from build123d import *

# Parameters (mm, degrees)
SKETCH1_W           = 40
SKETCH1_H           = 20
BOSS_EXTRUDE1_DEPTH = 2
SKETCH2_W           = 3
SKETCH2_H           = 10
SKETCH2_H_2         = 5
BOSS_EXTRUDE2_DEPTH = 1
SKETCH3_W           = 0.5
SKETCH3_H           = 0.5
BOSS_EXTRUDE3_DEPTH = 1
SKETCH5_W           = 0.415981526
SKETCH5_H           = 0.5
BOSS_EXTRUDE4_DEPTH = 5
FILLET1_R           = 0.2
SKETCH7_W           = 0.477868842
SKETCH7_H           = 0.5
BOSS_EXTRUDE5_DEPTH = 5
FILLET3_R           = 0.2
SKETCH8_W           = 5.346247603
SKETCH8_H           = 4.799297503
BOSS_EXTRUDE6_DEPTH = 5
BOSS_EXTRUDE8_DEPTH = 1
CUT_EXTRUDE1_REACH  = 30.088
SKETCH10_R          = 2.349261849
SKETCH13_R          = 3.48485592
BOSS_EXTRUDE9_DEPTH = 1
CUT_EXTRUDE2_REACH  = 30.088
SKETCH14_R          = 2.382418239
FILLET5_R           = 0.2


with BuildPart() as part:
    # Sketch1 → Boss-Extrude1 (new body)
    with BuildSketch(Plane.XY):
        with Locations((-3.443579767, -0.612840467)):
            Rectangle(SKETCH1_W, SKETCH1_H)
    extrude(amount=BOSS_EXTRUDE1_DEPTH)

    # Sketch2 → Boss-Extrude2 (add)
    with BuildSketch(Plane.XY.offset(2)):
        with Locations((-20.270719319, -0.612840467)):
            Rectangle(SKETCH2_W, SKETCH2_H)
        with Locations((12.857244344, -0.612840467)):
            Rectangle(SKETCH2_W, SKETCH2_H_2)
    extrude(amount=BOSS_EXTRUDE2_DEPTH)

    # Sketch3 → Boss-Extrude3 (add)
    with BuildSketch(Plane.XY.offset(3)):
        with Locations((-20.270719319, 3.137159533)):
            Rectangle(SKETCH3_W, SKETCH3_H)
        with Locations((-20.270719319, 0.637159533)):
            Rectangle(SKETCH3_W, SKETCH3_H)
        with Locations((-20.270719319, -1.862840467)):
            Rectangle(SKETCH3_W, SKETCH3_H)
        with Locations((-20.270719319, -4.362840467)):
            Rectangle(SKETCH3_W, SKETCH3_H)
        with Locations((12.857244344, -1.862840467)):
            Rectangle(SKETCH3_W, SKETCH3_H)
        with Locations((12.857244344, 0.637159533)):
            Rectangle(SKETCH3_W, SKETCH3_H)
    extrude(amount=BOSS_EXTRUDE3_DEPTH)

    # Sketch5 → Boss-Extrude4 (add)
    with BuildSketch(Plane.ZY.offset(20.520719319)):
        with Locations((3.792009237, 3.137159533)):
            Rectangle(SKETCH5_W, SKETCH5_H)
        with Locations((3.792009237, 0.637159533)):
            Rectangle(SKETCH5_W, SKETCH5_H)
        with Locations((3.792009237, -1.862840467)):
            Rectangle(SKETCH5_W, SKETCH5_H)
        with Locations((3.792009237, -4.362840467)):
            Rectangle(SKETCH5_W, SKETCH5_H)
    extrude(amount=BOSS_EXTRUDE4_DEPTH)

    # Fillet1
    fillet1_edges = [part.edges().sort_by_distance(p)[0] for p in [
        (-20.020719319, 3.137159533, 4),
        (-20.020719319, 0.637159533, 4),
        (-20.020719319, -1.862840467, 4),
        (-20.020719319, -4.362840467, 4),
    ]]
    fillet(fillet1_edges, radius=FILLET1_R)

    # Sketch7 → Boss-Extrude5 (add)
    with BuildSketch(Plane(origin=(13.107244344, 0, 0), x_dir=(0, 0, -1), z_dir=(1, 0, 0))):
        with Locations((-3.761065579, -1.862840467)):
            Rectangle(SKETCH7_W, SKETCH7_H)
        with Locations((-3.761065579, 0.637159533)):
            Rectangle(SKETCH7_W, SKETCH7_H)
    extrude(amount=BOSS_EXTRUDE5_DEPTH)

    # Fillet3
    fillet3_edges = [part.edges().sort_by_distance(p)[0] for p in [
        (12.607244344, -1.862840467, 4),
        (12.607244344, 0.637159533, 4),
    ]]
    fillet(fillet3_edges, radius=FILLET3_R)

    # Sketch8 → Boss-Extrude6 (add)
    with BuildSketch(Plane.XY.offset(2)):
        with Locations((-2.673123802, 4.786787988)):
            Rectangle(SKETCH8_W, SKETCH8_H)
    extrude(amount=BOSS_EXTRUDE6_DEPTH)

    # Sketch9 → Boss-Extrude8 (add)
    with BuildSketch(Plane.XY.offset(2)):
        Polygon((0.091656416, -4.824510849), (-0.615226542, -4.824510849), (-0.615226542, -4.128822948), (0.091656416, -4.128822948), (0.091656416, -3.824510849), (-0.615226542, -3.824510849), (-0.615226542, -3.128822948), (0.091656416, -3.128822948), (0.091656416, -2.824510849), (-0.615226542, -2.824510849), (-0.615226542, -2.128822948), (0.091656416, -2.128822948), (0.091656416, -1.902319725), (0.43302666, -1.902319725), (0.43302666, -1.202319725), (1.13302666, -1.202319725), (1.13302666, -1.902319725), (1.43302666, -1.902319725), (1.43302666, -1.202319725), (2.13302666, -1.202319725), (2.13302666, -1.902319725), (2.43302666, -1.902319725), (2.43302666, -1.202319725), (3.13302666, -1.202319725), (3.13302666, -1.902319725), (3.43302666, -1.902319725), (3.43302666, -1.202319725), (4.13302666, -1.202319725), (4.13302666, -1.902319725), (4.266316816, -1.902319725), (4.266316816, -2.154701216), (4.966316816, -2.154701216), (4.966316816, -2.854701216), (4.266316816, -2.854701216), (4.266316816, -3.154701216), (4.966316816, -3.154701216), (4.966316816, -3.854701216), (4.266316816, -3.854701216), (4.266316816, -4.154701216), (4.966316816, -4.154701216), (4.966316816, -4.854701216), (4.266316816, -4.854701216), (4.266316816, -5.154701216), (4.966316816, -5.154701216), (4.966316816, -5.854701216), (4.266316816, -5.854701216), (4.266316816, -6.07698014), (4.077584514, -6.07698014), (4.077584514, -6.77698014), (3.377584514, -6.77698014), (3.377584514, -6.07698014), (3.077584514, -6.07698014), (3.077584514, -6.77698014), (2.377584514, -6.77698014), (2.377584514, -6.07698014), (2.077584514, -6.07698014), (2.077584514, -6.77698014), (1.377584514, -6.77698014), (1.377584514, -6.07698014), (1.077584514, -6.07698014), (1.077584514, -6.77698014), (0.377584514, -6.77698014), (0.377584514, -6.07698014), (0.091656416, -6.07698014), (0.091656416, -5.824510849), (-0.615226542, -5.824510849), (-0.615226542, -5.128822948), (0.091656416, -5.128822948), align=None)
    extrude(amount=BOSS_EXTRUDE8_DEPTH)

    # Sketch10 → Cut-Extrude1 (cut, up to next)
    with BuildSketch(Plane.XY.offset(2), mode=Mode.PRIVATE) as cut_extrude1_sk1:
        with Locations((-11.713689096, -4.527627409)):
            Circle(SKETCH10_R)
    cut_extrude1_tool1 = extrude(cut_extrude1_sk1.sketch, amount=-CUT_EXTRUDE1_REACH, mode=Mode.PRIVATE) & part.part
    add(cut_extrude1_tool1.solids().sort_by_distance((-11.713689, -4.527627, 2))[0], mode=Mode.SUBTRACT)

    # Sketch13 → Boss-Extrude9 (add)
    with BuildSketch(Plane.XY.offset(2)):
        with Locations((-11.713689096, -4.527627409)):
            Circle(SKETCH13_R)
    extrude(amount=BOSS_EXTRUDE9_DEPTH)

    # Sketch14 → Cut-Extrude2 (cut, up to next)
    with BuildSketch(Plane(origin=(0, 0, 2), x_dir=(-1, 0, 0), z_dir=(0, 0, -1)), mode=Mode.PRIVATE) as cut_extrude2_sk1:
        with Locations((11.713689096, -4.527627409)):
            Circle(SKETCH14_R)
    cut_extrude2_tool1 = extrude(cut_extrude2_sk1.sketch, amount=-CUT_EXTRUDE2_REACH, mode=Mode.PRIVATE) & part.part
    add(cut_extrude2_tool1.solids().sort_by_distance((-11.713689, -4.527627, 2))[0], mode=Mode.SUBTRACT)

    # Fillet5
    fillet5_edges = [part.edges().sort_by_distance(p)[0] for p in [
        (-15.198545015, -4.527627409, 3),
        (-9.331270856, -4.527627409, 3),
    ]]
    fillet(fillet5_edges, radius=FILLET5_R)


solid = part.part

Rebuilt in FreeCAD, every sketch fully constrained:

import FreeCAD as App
import Part
import Sketcher
Q = App.Units.Quantity


def edges_at(feature, points):
    """Names of the edges that pass closest to the given points."""
    edges = feature.Shape.Edges
    near = lambda p: min(range(len(edges)), key=lambda i: edges[i].distToShape(Part.Vertex(*p))[0])
    return sorted({f"Edge{near(p) + 1}" for p in points})


def add_polygon(sketch, points):
    """Adds a closed chain of lines whose ends are joined by coincident constraints."""
    first, n = sketch.GeometryCount, len(points)
    for a, b in zip(points, points[1:] + points[:1]):
        sketch.addGeometry(Part.LineSegment(App.Vector(*a, 0), App.Vector(*b, 0)), False)
    for i in range(n):
        sketch.addConstraint(Sketcher.Constraint("Coincident", first + i, 2, first + (i + 1) % n, 1))

doc = App.newDocument("Part")
params = doc.addObject("Spreadsheet::Sheet", "Params")
for row, (alias, value) in enumerate([
    ("sketch1_width", "40 mm"),
    ("sketch1_height", "20 mm"),
    ("pad1_length", "2 mm"),
    ("sketch2_width", "3 mm"),
    ("sketch2_height", "10 mm"),
    ("sketch2_height2", "5 mm"),
    ("pad2_length", "1 mm"),
    ("sketch3_width", "0.5 mm"),
    ("pad3_length", "1 mm"),
    ("sketch4_width", "0.5 mm"),
    ("pad4_length", "5 mm"),
    ("fillet_radius", "0.2 mm"),
    ("sketch5_width", "0.5 mm"),
    ("pad5_length", "5 mm"),
    ("fillet2_radius", "0.2 mm"),
    ("pad6_length", "5 mm"),
    ("sketch7_width", "0.7 mm"),
    ("sketch7_width2", "0.3 mm"),
    ("pad7_length", "1 mm"),
    ("pad8_length", "1 mm"),
    ("fillet3_radius", "0.2 mm"),
], start=1):
    params.set(f"A{row}", alias)
    params.set(f"B{row}", "=" + value)
    params.setAlias(f"B{row}", alias)

body = doc.addObject("PartDesign::Body", "Body")

# Sketch on XY plane
sketch1 = doc.addObject("Sketcher::SketchObject", "Sketch")
body.addObject(sketch1)
sketch1.AttachmentSupport = (doc.XY_Plane, [""])
sketch1.MapMode = "FlatFace"
add_polygon(sketch1, [(-23.44358, 9.38716), (-23.44358, -10.61284), (16.55642, -10.61284), (16.55642, 9.38716)])  # lines 0-3
sketch1.addConstraint(Sketcher.Constraint("Vertical", 0))
sketch1.addConstraint(Sketcher.Constraint("Horizontal", 1))
sketch1.addConstraint(Sketcher.Constraint("Vertical", 2))
sketch1.addConstraint(Sketcher.Constraint("Horizontal", 3))
sketch1.addConstraint(Sketcher.Constraint("DistanceX", 1, 1, 1, 2, Q("40 mm")))
sketch1.addConstraint(Sketcher.Constraint("DistanceY", 0, 2, 0, 1, Q("20 mm")))
sketch1.addConstraint(Sketcher.Constraint("DistanceX", 0, 2, -1, 1, Q("23.44358 mm")))
sketch1.addConstraint(Sketcher.Constraint("DistanceY", 0, 2, -1, 1, Q("10.61284 mm")))
sketch1.setExpression("Constraints[8]", "Params.sketch1_width")
sketch1.setExpression("Constraints[9]", "Params.sketch1_height")
pad1 = doc.addObject("PartDesign::Pad", "Pad")
body.addObject(pad1)
pad1.Profile = sketch1
pad1.setExpression("Length", "Params.pad1_length")

# Sketch on XY plane
sketch2 = doc.addObject("Sketcher::SketchObject", "Sketch001")
body.addObject(sketch2)
sketch2.AttachmentSupport = (doc.XY_Plane, [""])
sketch2.MapMode = "FlatFace"
sketch2.AttachmentOffset = App.Placement(App.Vector(0, 0, 2), App.Rotation())
add_polygon(sketch2, [(-21.770719, 4.38716), (-21.770719, -5.61284), (-18.770719, -5.61284), (-18.770719, 4.38716)])  # lines 0-3
add_polygon(sketch2, [(11.357244, 1.88716), (11.357244, -3.11284), (14.357244, -3.11284), (14.357244, 1.88716)])  # lines 4-7
sketch2.addConstraint(Sketcher.Constraint("Vertical", 0))
sketch2.addConstraint(Sketcher.Constraint("Horizontal", 1))
sketch2.addConstraint(Sketcher.Constraint("Vertical", 2))
sketch2.addConstraint(Sketcher.Constraint("Horizontal", 3))
sketch2.addConstraint(Sketcher.Constraint("Vertical", 4))
sketch2.addConstraint(Sketcher.Constraint("Horizontal", 5))
sketch2.addConstraint(Sketcher.Constraint("Vertical", 6))
sketch2.addConstraint(Sketcher.Constraint("Horizontal", 7))
sketch2.addConstraint(Sketcher.Constraint("Equal", 3, 5))
sketch2.addConstraint(Sketcher.Constraint("DistanceX", 1, 1, 1, 2, Q("3 mm")))
sketch2.addConstraint(Sketcher.Constraint("DistanceY", 0, 2, 0, 1, Q("10 mm")))
sketch2.addConstraint(Sketcher.Constraint("DistanceY", 4, 2, 4, 1, Q("5 mm")))
sketch2.addConstraint(Sketcher.Constraint("DistanceY", 1, 2, 4, 2, Q("2.5 mm")))
sketch2.addConstraint(Sketcher.Constraint("DistanceX", 0, 2, -1, 1, Q("21.770719 mm")))
sketch2.addConstraint(Sketcher.Constraint("DistanceY", 0, 2, -1, 1, Q("5.61284 mm")))
sketch2.addConstraint(Sketcher.Constraint("DistanceX", -1, 1, 4, 2, Q("11.357244 mm")))
sketch2.setExpression("Constraints[17]", "Params.sketch2_width")
sketch2.setExpression("Constraints[18]", "Params.sketch2_height")
sketch2.setExpression("Constraints[19]", "Params.sketch2_height2")
pad2 = doc.addObject("PartDesign::Pad", "Pad001")
body.addObject(pad2)
pad2.Profile = sketch2
pad2.setExpression("Length", "Params.pad2_length")

# Sketch on XY plane
sketch3 = doc.addObject("Sketcher::SketchObject", "Sketch002")
body.addObject(sketch3)
sketch3.AttachmentSupport = (doc.XY_Plane, [""])
sketch3.MapMode = "FlatFace"
sketch3.AttachmentOffset = App.Placement(App.Vector(0, 0, 3), App.Rotation())
add_polygon(sketch3, [(-20.520719, 3.38716), (-20.520719, 2.88716), (-20.020719, 2.88716), (-20.020719, 3.38716)])  # lines 0-3
add_polygon(sketch3, [(-20.520719, 0.88716), (-20.520719, 0.38716), (-20.020719, 0.38716), (-20.020719, 0.88716)])  # lines 4-7
add_polygon(sketch3, [(-20.520719, -1.61284), (-20.520719, -2.11284), (-20.020719, -2.11284), (-20.020719, -1.61284)])  # lines 8-11
add_polygon(sketch3, [(-20.520719, -4.11284), (-20.520719, -4.61284), (-20.020719, -4.61284), (-20.020719, -4.11284)])  # lines 12-15
add_polygon(sketch3, [(12.607244, -1.61284), (12.607244, -2.11284), (13.107244, -2.11284), (13.107244, -1.61284)])  # lines 16-19
add_polygon(sketch3, [(12.607244, 0.88716), (12.607244, 0.38716), (13.107244, 0.38716), (13.107244, 0.88716)])  # lines 20-23
sketch3.addConstraint(Sketcher.Constraint("Vertical", 0))
sketch3.addConstraint(Sketcher.Constraint("Horizontal", 1))
sketch3.addConstraint(Sketcher.Constraint("Vertical", 2))
sketch3.addConstraint(Sketcher.Constraint("Horizontal", 3))
sketch3.addConstraint(Sketcher.Constraint("Vertical", 4))
sketch3.addConstraint(Sketcher.Constraint("Horizontal", 5))
sketch3.addConstraint(Sketcher.Constraint("Vertical", 6))
sketch3.addConstraint(Sketcher.Constraint("Horizontal", 7))
sketch3.addConstraint(Sketcher.Constraint("Vertical", 8))
sketch3.addConstraint(Sketcher.Constraint("Horizontal", 9))
sketch3.addConstraint(Sketcher.Constraint("Vertical", 10))
sketch3.addConstraint(Sketcher.Constraint("Horizontal", 11))
sketch3.addConstraint(Sketcher.Constraint("Vertical", 12))
sketch3.addConstraint(Sketcher.Constraint("Horizontal", 13))
sketch3.addConstraint(Sketcher.Constraint("Vertical", 14))
sketch3.addConstraint(Sketcher.Constraint("Horizontal", 15))
sketch3.addConstraint(Sketcher.Constraint("Vertical", 16))
sketch3.addConstraint(Sketcher.Constraint("Horizontal", 17))
sketch3.addConstraint(Sketcher.Constraint("Vertical", 18))
sketch3.addConstraint(Sketcher.Constraint("Horizontal", 19))
sketch3.addConstraint(Sketcher.Constraint("Vertical", 20))
sketch3.addConstraint(Sketcher.Constraint("Horizontal", 21))
sketch3.addConstraint(Sketcher.Constraint("Vertical", 22))
sketch3.addConstraint(Sketcher.Constraint("Horizontal", 23))
sketch3.addConstraint(Sketcher.Constraint("Horizontal", 9, 2, 16, 2))
sketch3.addConstraint(Sketcher.Constraint("Horizontal", 11, 2, 18, 2))
sketch3.addConstraint(Sketcher.Constraint("Horizontal", 5, 2, 20, 2))
sketch3.addConstraint(Sketcher.Constraint("Horizontal", 7, 2, 22, 2))
sketch3.addConstraint(Sketcher.Constraint("Vertical", 3, 2, 4, 2))
sketch3.addConstraint(Sketcher.Constraint("Vertical", 2, 2, 5, 2))
sketch3.addConstraint(Sketcher.Constraint("Vertical", 7, 2, 8, 2))
sketch3.addConstraint(Sketcher.Constraint("Vertical", 6, 2, 9, 2))
sketch3.addConstraint(Sketcher.Constraint("Vertical", 11, 2, 12, 2))
sketch3.addConstraint(Sketcher.Constraint("Vertical", 10, 2, 13, 2))
sketch3.addConstraint(Sketcher.Constraint("Vertical", 19, 2, 20, 2))
sketch3.addConstraint(Sketcher.Constraint("Vertical", 18, 2, 21, 2))
sketch3.addConstraint(Sketcher.Constraint("Equal", 15, 17))
sketch3.addConstraint(Sketcher.Constraint("Equal", 23, 0))
sketch3.addConstraint(Sketcher.Constraint("Equal", 2, 4))
sketch3.addConstraint(Sketcher.Constraint("Equal", 6, 8))
sketch3.addConstraint(Sketcher.Constraint("Equal", 10, 12))
sketch3.addConstraint(Sketcher.Constraint("DistanceX", 1, 1, 1, 2, Q("0.5 mm")))
sketch3.addConstraint(Sketcher.Constraint("DistanceY", 4, 2, 3, 2, Q("3 mm")))
sketch3.addConstraint(Sketcher.Constraint("DistanceY", 8, 2, 7, 2, Q("3 mm")))
sketch3.addConstraint(Sketcher.Constraint("DistanceY", 12, 2, 11, 2, Q("3 mm")))
sketch3.addConstraint(Sketcher.Constraint("DistanceX", 0, 2, -1, 1, Q("20.520719 mm")))
sketch3.addConstraint(Sketcher.Constraint("DistanceY", -1, 1, 0, 2, Q("2.88716 mm")))
sketch3.addConstraint(Sketcher.Constraint("DistanceX", -1, 1, 16, 2, Q("12.607244 mm")))
sketch3.setExpression("Constraints[65]", "Params.sketch3_width")
pad3 = doc.addObject("PartDesign::Pad", "Pad002")
body.addObject(pad3)
pad3.Profile = sketch3
pad3.setExpression("Length", "Params.pad3_length")

# Sketch on YZ plane
sketch4 = doc.addObject("Sketcher::SketchObject", "Sketch003")
body.addObject(sketch4)
sketch4.AttachmentSupport = (doc.YZ_Plane, [""])
sketch4.MapMode = "FlatFace"
sketch4.AttachmentOffset = App.Placement(App.Vector(0, 0, -20.520719), App.Rotation())
add_polygon(sketch4, [(3.38716, 3.584018), (2.88716, 3.584018), (2.88716, 4), (3.38716, 4)])  # lines 0-3
add_polygon(sketch4, [(0.88716, 3.584018), (0.38716, 3.584018), (0.38716, 4), (0.88716, 4)])  # lines 4-7
add_polygon(sketch4, [(-1.61284, 3.584018), (-2.11284, 3.584018), (-2.11284, 4), (-1.61284, 4)])  # lines 8-11
add_polygon(sketch4, [(-4.11284, 3.584018), (-4.61284, 3.584018), (-4.61284, 4), (-4.11284, 4)])  # lines 12-15
sketch4.addConstraint(Sketcher.Constraint("Horizontal", 0))
sketch4.addConstraint(Sketcher.Constraint("Vertical", 1))
sketch4.addConstraint(Sketcher.Constraint("Horizontal", 2))
sketch4.addConstraint(Sketcher.Constraint("Vertical", 3))
sketch4.addConstraint(Sketcher.Constraint("Horizontal", 4))
sketch4.addConstraint(Sketcher.Constraint("Vertical", 5))
sketch4.addConstraint(Sketcher.Constraint("Horizontal", 6))
sketch4.addConstraint(Sketcher.Constraint("Vertical", 7))
sketch4.addConstraint(Sketcher.Constraint("Horizontal", 8))
sketch4.addConstraint(Sketcher.Constraint("Vertical", 9))
sketch4.addConstraint(Sketcher.Constraint("Horizontal", 10))
sketch4.addConstraint(Sketcher.Constraint("Vertical", 11))
sketch4.addConstraint(Sketcher.Constraint("Horizontal", 12))
sketch4.addConstraint(Sketcher.Constraint("Vertical", 13))
sketch4.addConstraint(Sketcher.Constraint("Horizontal", 14))
sketch4.addConstraint(Sketcher.Constraint("Vertical", 15))
sketch4.addConstraint(Sketcher.Constraint("Horizontal", 3, 2, 4, 2))
sketch4.addConstraint(Sketcher.Constraint("Horizontal", 2, 2, 5, 2))
sketch4.addConstraint(Sketcher.Constraint("Horizontal", 7, 2, 8, 2))
sketch4.addConstraint(Sketcher.Constraint("Horizontal", 6, 2, 9, 2))
sketch4.addConstraint(Sketcher.Constraint("Horizontal", 11, 2, 12, 2))
sketch4.addConstraint(Sketcher.Constraint("Horizontal", 10, 2, 13, 2))
sketch4.addConstraint(Sketcher.Constraint("Equal", 2, 4))
sketch4.addConstraint(Sketcher.Constraint("Equal", 6, 8))
sketch4.addConstraint(Sketcher.Constraint("Equal", 10, 12))
sketch4.addConstraint(Sketcher.Constraint("DistanceX", 0, 2, 0, 1, Q("0.5 mm")))
sketch4.addConstraint(Sketcher.Constraint("DistanceY", -1, 1, 1, 2, Q("4 mm")))
sketch4.addConstraint(Sketcher.Constraint("DistanceX", 4, 2, 3, 2, Q("3 mm")))
sketch4.addConstraint(Sketcher.Constraint("DistanceX", 8, 2, 7, 2, Q("3 mm")))
sketch4.addConstraint(Sketcher.Constraint("DistanceX", 12, 2, 11, 2, Q("3 mm")))
sketch4.addConstraint(Sketcher.Constraint("DistanceY", 1, 1, 1, 2, Q("0.415982 mm")))
sketch4.addConstraint(Sketcher.Constraint("DistanceX", -1, 1, 0, 2, Q("2.88716 mm")))
sketch4.setExpression("Constraints[41]", "Params.sketch4_width")
pad4 = doc.addObject("PartDesign::Pad", "Pad003")
body.addObject(pad4)
pad4.Profile = sketch4
pad4.setExpression("Length", "Params.pad4_length")
pad4.Reversed = True
doc.recompute()

fillet = doc.addObject("PartDesign::Fillet", "Fillet")
body.addObject(fillet)
fillet.Base = (pad4, edges_at(pad4, [
    (-20.021, 3.137, 4),
    (-20.021, 0.637, 4),
    (-20.021, -1.863, 4),
    (-20.021, -4.363, 4),
]))
fillet.setExpression("Radius", "Params.fillet_radius")

# Sketch on YZ plane
sketch5 = doc.addObject("Sketcher::SketchObject", "Sketch004")
body.addObject(sketch5)
sketch5.AttachmentSupport = (doc.YZ_Plane, [""])
sketch5.MapMode = "FlatFace"
sketch5.AttachmentOffset = App.Placement(App.Vector(0, 0, 13.107244), App.Rotation())
add_polygon(sketch5, [(-1.61284, 4), (-2.11284, 4), (-2.11284, 3.522131), (-1.61284, 3.522131)])  # lines 0-3
add_polygon(sketch5, [(0.88716, 4), (0.38716, 4), (0.38716, 3.522131), (0.88716, 3.522131)])  # lines 4-7
sketch5.addConstraint(Sketcher.Constraint("Horizontal", 0))
sketch5.addConstraint(Sketcher.Constraint("Vertical", 1))
sketch5.addConstraint(Sketcher.Constraint("Horizontal", 2))
sketch5.addConstraint(Sketcher.Constraint("Vertical", 3))
sketch5.addConstraint(Sketcher.Constraint("Horizontal", 4))
sketch5.addConstraint(Sketcher.Constraint("Vertical", 5))
sketch5.addConstraint(Sketcher.Constraint("Horizontal", 6))
sketch5.addConstraint(Sketcher.Constraint("Vertical", 7))
sketch5.addConstraint(Sketcher.Constraint("Horizontal", 3, 2, 4, 2))
sketch5.addConstraint(Sketcher.Constraint("Horizontal", 2, 2, 5, 2))
sketch5.addConstraint(Sketcher.Constraint("Equal", 2, 4))
sketch5.addConstraint(Sketcher.Constraint("DistanceX", 0, 2, 0, 1, Q("0.5 mm")))
sketch5.addConstraint(Sketcher.Constraint("DistanceY", -1, 1, 0, 2, Q("4 mm")))
sketch5.addConstraint(Sketcher.Constraint("DistanceX", 3, 2, 4, 2, Q("2 mm")))
sketch5.addConstraint(Sketcher.Constraint("DistanceY", 1, 2, 1, 1, Q("0.477869 mm")))
sketch5.addConstraint(Sketcher.Constraint("DistanceX", 0, 2, -1, 1, Q("2.11284 mm")))
sketch5.setExpression("Constraints[19]", "Params.sketch5_width")
pad5 = doc.addObject("PartDesign::Pad", "Pad004")
body.addObject(pad5)
pad5.Profile = sketch5
pad5.setExpression("Length", "Params.pad5_length")
doc.recompute()

fillet2 = doc.addObject("PartDesign::Fillet", "Fillet001")
body.addObject(fillet2)
fillet2.Base = (pad5, edges_at(pad5, [(12.607, -1.863, 4), (12.607, 0.637, 4)]))
fillet2.setExpression("Radius", "Params.fillet2_radius")

# Sketch on XY plane
sketch6 = doc.addObject("Sketcher::SketchObject", "Sketch005")
body.addObject(sketch6)
sketch6.AttachmentSupport = (doc.XY_Plane, [""])
sketch6.MapMode = "FlatFace"
sketch6.AttachmentOffset = App.Placement(App.Vector(0, 0, 2), App.Rotation())
add_polygon(sketch6, [(-5.346248, 7.186437), (-5.346248, 2.387139), (0, 2.387139), (0, 7.186437)])  # lines 0-3
sketch6.addConstraint(Sketcher.Constraint("Vertical", 0))
sketch6.addConstraint(Sketcher.Constraint("Horizontal", 1))
sketch6.addConstraint(Sketcher.Constraint("Vertical", 2))
sketch6.addConstraint(Sketcher.Constraint("Horizontal", 3))
sketch6.addConstraint(Sketcher.Constraint("PointOnObject", 1, 2, -2))
sketch6.addConstraint(Sketcher.Constraint("DistanceX", 1, 1, 1, 2, Q("5.346248 mm")))
sketch6.addConstraint(Sketcher.Constraint("DistanceY", 0, 2, 0, 1, Q("4.799298 mm")))
sketch6.addConstraint(Sketcher.Constraint("DistanceY", -1, 1, 0, 2, Q("2.387139 mm")))
pad6 = doc.addObject("PartDesign::Pad", "Pad005")
body.addObject(pad6)
pad6.Profile = sketch6
pad6.setExpression("Length", "Params.pad6_length")

# Sketch on XY plane
sketch7 = doc.addObject("Sketcher::SketchObject", "Sketch006")
body.addObject(sketch7)
sketch7.AttachmentSupport = (doc.XY_Plane, [""])
sketch7.MapMode = "FlatFace"
sketch7.AttachmentOffset = App.Placement(App.Vector(0, 0, 2), App.Rotation())
add_polygon(sketch7, [(-0.615227, -4.824511), (0.091656, -4.824511), (0.091656, -5.128823), (-0.615227, -5.128823), (-0.615227, -5.824511), (0.091656, -5.824511), (0.091656, -6.07698), (0.377585, -6.07698), (0.377585, -6.77698), (1.077585, -6.77698), (1.077585, -6.07698), (1.377585, -6.07698), (1.377585, -6.77698), (2.077585, -6.77698), (2.077585, -6.07698), (2.377585, -6.07698), (2.377585, -6.77698), (3.077585, -6.77698), (3.077585, -6.07698), (3.377585, -6.07698), (3.377585, -6.77698), (4.077585, -6.77698), (4.077585, -6.07698), (4.266317, -6.07698), (4.266317, -5.854701), (4.966317, -5.854701), (4.966317, -5.154701), (4.266317, -5.154701), (4.266317, -4.854701), (4.966317, -4.854701), (4.966317, -4.154701), (4.266317, -4.154701), (4.266317, -3.854701), (4.966317, -3.854701), (4.966317, -3.154701), (4.266317, -3.154701), (4.266317, -2.854701), (4.966317, -2.854701), (4.966317, -2.154701), (4.266317, -2.154701), (4.266317, -1.90232), (4.133027, -1.90232), (4.133027, -1.20232), (3.433027, -1.20232), (3.433027, -1.90232), (3.133027, -1.90232), (3.133027, -1.20232), (2.433027, -1.20232), (2.433027, -1.90232), (2.133027, -1.90232), (2.133027, -1.20232), (1.433027, -1.20232), (1.433027, -1.90232), (1.133027, -1.90232), (1.133027, -1.20232), (0.433027, -1.20232), (0.433027, -1.90232), (0.091656, -1.90232), (0.091656, -2.128823), (-0.615227, -2.128823), (-0.615227, -2.824511), (0.091656, -2.824511), (0.091656, -3.128823), (-0.615227, -3.128823), (-0.615227, -3.824511), (0.091656, -3.824511), (0.091656, -4.128823), (-0.615227, -4.128823)])  # lines 0-67
sketch7.addConstraint(Sketcher.Constraint("Horizontal", 0))
sketch7.addConstraint(Sketcher.Constraint("Vertical", 1))
sketch7.addConstraint(Sketcher.Constraint("Horizontal", 2))
sketch7.addConstraint(Sketcher.Constraint("Vertical", 3))
sketch7.addConstraint(Sketcher.Constraint("Horizontal", 4))
sketch7.addConstraint(Sketcher.Constraint("Vertical", 5))
sketch7.addConstraint(Sketcher.Constraint("Horizontal", 6))
sketch7.addConstraint(Sketcher.Constraint("Vertical", 7))
sketch7.addConstraint(Sketcher.Constraint("Horizontal", 8))
sketch7.addConstraint(Sketcher.Constraint("Vertical", 9))
sketch7.addConstraint(Sketcher.Constraint("Horizontal", 10))
sketch7.addConstraint(Sketcher.Constraint("Vertical", 11))
sketch7.addConstraint(Sketcher.Constraint("Horizontal", 12))
sketch7.addConstraint(Sketcher.Constraint("Vertical", 13))
sketch7.addConstraint(Sketcher.Constraint("Horizontal", 14))
sketch7.addConstraint(Sketcher.Constraint("Vertical", 15))
sketch7.addConstraint(Sketcher.Constraint("Horizontal", 16))
sketch7.addConstraint(Sketcher.Constraint("Vertical", 17))
sketch7.addConstraint(Sketcher.Constraint("Horizontal", 18))
sketch7.addConstraint(Sketcher.Constraint("Vertical", 19))
sketch7.addConstraint(Sketcher.Constraint("Horizontal", 20))
sketch7.addConstraint(Sketcher.Constraint("Vertical", 21))
sketch7.addConstraint(Sketcher.Constraint("Horizontal", 22))
sketch7.addConstraint(Sketcher.Constraint("Vertical", 23))
sketch7.addConstraint(Sketcher.Constraint("Horizontal", 24))
sketch7.addConstraint(Sketcher.Constraint("Vertical", 25))
sketch7.addConstraint(Sketcher.Constraint("Horizontal", 26))
sketch7.addConstraint(Sketcher.Constraint("Vertical", 27))
sketch7.addConstraint(Sketcher.Constraint("Horizontal", 28))
sketch7.addConstraint(Sketcher.Constraint("Vertical", 29))
sketch7.addConstraint(Sketcher.Constraint("Horizontal", 30))
sketch7.addConstraint(Sketcher.Constraint("Vertical", 31))
sketch7.addConstraint(Sketcher.Constraint("Horizontal", 32))
sketch7.addConstraint(Sketcher.Constraint("Vertical", 33))
sketch7.addConstraint(Sketcher.Constraint("Horizontal", 34))
sketch7.addConstraint(Sketcher.Constraint("Vertical", 35))
sketch7.addConstraint(Sketcher.Constraint("Horizontal", 36))
sketch7.addConstraint(Sketcher.Constraint("Vertical", 37))
sketch7.addConstraint(Sketcher.Constraint("Horizontal", 38))
sketch7.addConstraint(Sketcher.Constraint("Vertical", 39))
sketch7.addConstraint(Sketcher.Constraint("Horizontal", 40))
sketch7.addConstraint(Sketcher.Constraint("Vertical", 41))
sketch7.addConstraint(Sketcher.Constraint("Horizontal", 42))
sketch7.addConstraint(Sketcher.Constraint("Vertical", 43))
sketch7.addConstraint(Sketcher.Constraint("Horizontal", 44))
sketch7.addConstraint(Sketcher.Constraint("Vertical", 45))
sketch7.addConstraint(Sketcher.Constraint("Horizontal", 46))
sketch7.addConstraint(Sketcher.Constraint("Vertical", 47))
sketch7.addConstraint(Sketcher.Constraint("Horizontal", 48))
sketch7.addConstraint(Sketcher.Constraint("Vertical", 49))
sketch7.addConstraint(Sketcher.Constraint("Horizontal", 50))
sketch7.addConstraint(Sketcher.Constraint("Vertical", 51))
sketch7.addConstraint(Sketcher.Constraint("Horizontal", 52))
sketch7.addConstraint(Sketcher.Constraint("Vertical", 53))
sketch7.addConstraint(Sketcher.Constraint("Horizontal", 54))
sketch7.addConstraint(Sketcher.Constraint("Vertical", 55))
sketch7.addConstraint(Sketcher.Constraint("Horizontal", 56))
sketch7.addConstraint(Sketcher.Constraint("Vertical", 57))
sketch7.addConstraint(Sketcher.Constraint("Horizontal", 58))
sketch7.addConstraint(Sketcher.Constraint("Vertical", 59))
sketch7.addConstraint(Sketcher.Constraint("Horizontal", 60))
sketch7.addConstraint(Sketcher.Constraint("Vertical", 61))
sketch7.addConstraint(Sketcher.Constraint("Horizontal", 62))
sketch7.addConstraint(Sketcher.Constraint("Vertical", 63))
sketch7.addConstraint(Sketcher.Constraint("Horizontal", 64))
sketch7.addConstraint(Sketcher.Constraint("Vertical", 65))
sketch7.addConstraint(Sketcher.Constraint("Horizontal", 66))
sketch7.addConstraint(Sketcher.Constraint("Vertical", 67))
sketch7.addConstraint(Sketcher.Constraint("Horizontal", 6, 2, 9, 2))
sketch7.addConstraint(Sketcher.Constraint("Horizontal", 8, 2, 11, 2))
sketch7.addConstraint(Sketcher.Constraint("Horizontal", 10, 2, 13, 2))
sketch7.addConstraint(Sketcher.Constraint("Horizontal", 12, 2, 15, 2))
sketch7.addConstraint(Sketcher.Constraint("Horizontal", 14, 2, 17, 2))
sketch7.addConstraint(Sketcher.Constraint("Horizontal", 16, 2, 19, 2))
sketch7.addConstraint(Sketcher.Constraint("Horizontal", 18, 2, 21, 2))
sketch7.addConstraint(Sketcher.Constraint("Horizontal", 40, 2, 43, 2))
sketch7.addConstraint(Sketcher.Constraint("Horizontal", 42, 2, 45, 2))
sketch7.addConstraint(Sketcher.Constraint("Horizontal", 44, 2, 47, 2))
sketch7.addConstraint(Sketcher.Constraint("Horizontal", 46, 2, 49, 2))
sketch7.addConstraint(Sketcher.Constraint("Horizontal", 48, 2, 51, 2))
sketch7.addConstraint(Sketcher.Constraint("Horizontal", 50, 2, 53, 2))
sketch7.addConstraint(Sketcher.Constraint("Horizontal", 52, 2, 55, 2))
sketch7.addConstraint(Sketcher.Constraint("Vertical", 1, 2, 4, 2))
sketch7.addConstraint(Sketcher.Constraint("Vertical", 23, 2, 26, 2))
sketch7.addConstraint(Sketcher.Constraint("Vertical", 25, 2, 28, 2))
sketch7.addConstraint(Sketcher.Constraint("Vertical", 27, 2, 30, 2))
sketch7.addConstraint(Sketcher.Constraint("Vertical", 29, 2, 32, 2))
sketch7.addConstraint(Sketcher.Constraint("Vertical", 31, 2, 34, 2))
sketch7.addConstraint(Sketcher.Constraint("Vertical", 33, 2, 36, 2))
sketch7.addConstraint(Sketcher.Constraint("Vertical", 35, 2, 38, 2))
sketch7.addConstraint(Sketcher.Constraint("Vertical", 5, 2, 56, 2))
sketch7.addConstraint(Sketcher.Constraint("Vertical", 3, 2, 58, 2))
sketch7.addConstraint(Sketcher.Constraint("Vertical", 57, 2, 60, 2))
sketch7.addConstraint(Sketcher.Constraint("Vertical", 59, 2, 62, 2))
sketch7.addConstraint(Sketcher.Constraint("Vertical", 61, 2, 64, 2))
sketch7.addConstraint(Sketcher.Constraint("Vertical", 63, 2, 66, 2))
sketch7.addConstraint(Sketcher.Constraint("Equal", 8, 12))
sketch7.addConstraint(Sketcher.Constraint("Equal", 10, 14))
sketch7.addConstraint(Sketcher.Constraint("Equal", 12, 16))
sketch7.addConstraint(Sketcher.Constraint("Equal", 14, 18))
sketch7.addConstraint(Sketcher.Constraint("Equal", 16, 20))
sketch7.addConstraint(Sketcher.Constraint("Equal", 20, 24))
sketch7.addConstraint(Sketcher.Constraint("Equal", 38, 42))
sketch7.addConstraint(Sketcher.Constraint("Equal", 18, 44))
sketch7.addConstraint(Sketcher.Constraint("Equal", 42, 46))
sketch7.addConstraint(Sketcher.Constraint("Equal", 44, 48))
sketch7.addConstraint(Sketcher.Constraint("Equal", 46, 50))
sketch7.addConstraint(Sketcher.Constraint("Equal", 48, 52))
sketch7.addConstraint(Sketcher.Constraint("Equal", 50, 54))
sketch7.addConstraint(Sketcher.Constraint("Equal", 54, 7))
sketch7.addConstraint(Sketcher.Constraint("Equal", 21, 25))
sketch7.addConstraint(Sketcher.Constraint("Equal", 52, 27))
sketch7.addConstraint(Sketcher.Constraint("Equal", 25, 29))
sketch7.addConstraint(Sketcher.Constraint("Equal", 27, 31))
sketch7.addConstraint(Sketcher.Constraint("Equal", 29, 33))
sketch7.addConstraint(Sketcher.Constraint("Equal", 31, 35))
sketch7.addConstraint(Sketcher.Constraint("Equal", 33, 37))
sketch7.addConstraint(Sketcher.Constraint("Equal", 37, 41))
sketch7.addConstraint(Sketcher.Constraint("Equal", 3, 59))
sketch7.addConstraint(Sketcher.Constraint("Equal", 1, 61))
sketch7.addConstraint(Sketcher.Constraint("Equal", 59, 63))
sketch7.addConstraint(Sketcher.Constraint("Equal", 61, 65))
sketch7.addConstraint(Sketcher.Constraint("Equal", 63, 67))
sketch7.addConstraint(Sketcher.Constraint("DistanceX", 8, 1, 8, 2, Q("0.7 mm")))
sketch7.addConstraint(Sketcher.Constraint("DistanceX", 10, 1, 10, 2, Q("0.3 mm")))
sketch7.addConstraint(Sketcher.Constraint("DistanceX", 6, 1, 6, 2, Q("0.285928 mm")))
sketch7.addConstraint(Sketcher.Constraint("DistanceX", 40, 2, 40, 1, Q("0.13329 mm")))
sketch7.addConstraint(Sketcher.Constraint("DistanceX", 56, 2, 56, 1, Q("0.34137 mm")))
sketch7.addConstraint(Sketcher.Constraint("DistanceY", 5, 2, 5, 1, Q("0.252469 mm")))
sketch7.addConstraint(Sketcher.Constraint("DistanceY", 23, 1, 23, 2, Q("0.222279 mm")))
sketch7.addConstraint(Sketcher.Constraint("DistanceY", 39, 1, 39, 2, Q("0.252381 mm")))
sketch7.addConstraint(Sketcher.Constraint("DistanceY", 23, 2, -1, 1, Q("5.854701 mm")))
sketch7.addConstraint(Sketcher.Constraint("DistanceX", 0, 1, 0, 2, Q("0.706883 mm")))
sketch7.addConstraint(Sketcher.Constraint("DistanceY", 1, 2, 1, 1, Q("0.304312 mm")))
sketch7.addConstraint(Sketcher.Constraint("DistanceY", 3, 2, 3, 1, Q("0.695688 mm")))
sketch7.addConstraint(Sketcher.Constraint("DistanceX", -1, 1, 0, 2, Q("0.091656 mm")))
sketch7.setExpression("Constraints[191]", "Params.sketch7_width")
sketch7.setExpression("Constraints[192]", "Params.sketch7_width2")
pad7 = doc.addObject("PartDesign::Pad", "Pad006")
body.addObject(pad7)
pad7.Profile = sketch7
pad7.setExpression("Length", "Params.pad7_length")

# Sketch on XY plane
sketch8 = doc.addObject("Sketcher::SketchObject", "Sketch007")
body.addObject(sketch8)
sketch8.AttachmentSupport = (doc.XY_Plane, [""])
sketch8.MapMode = "FlatFace"
sketch8.AttachmentOffset = App.Placement(App.Vector(0, 0, 2), App.Rotation())
sketch8.addGeometry(Part.Circle(App.Vector(-11.713689, -4.527627, 0), App.Vector(0, 0, 1), 2.349262), False)
sketch8.addConstraint(Sketcher.Constraint("Diameter", 0, Q("4.698524 mm")))
sketch8.addConstraint(Sketcher.Constraint("DistanceX", 0, 3, -1, 1, Q("11.713689 mm")))
sketch8.addConstraint(Sketcher.Constraint("DistanceY", 0, 3, -1, 1, Q("4.527627 mm")))
pocket1 = doc.addObject("PartDesign::Pocket", "Pocket")
body.addObject(pocket1)
pocket1.Profile = sketch8
pocket1.Type = "UpToFirst"

# Sketch on XY plane
sketch9 = doc.addObject("Sketcher::SketchObject", "Sketch008")
body.addObject(sketch9)
sketch9.AttachmentSupport = (doc.XY_Plane, [""])
sketch9.MapMode = "FlatFace"
sketch9.AttachmentOffset = App.Placement(App.Vector(0, 0, 2), App.Rotation())
sketch9.addGeometry(Part.Circle(App.Vector(-11.713689, -4.527627, 0), App.Vector(0, 0, 1), 3.484856), False)
sketch9.addConstraint(Sketcher.Constraint("Diameter", 0, Q("6.969712 mm")))
sketch9.addConstraint(Sketcher.Constraint("DistanceX", 0, 3, -1, 1, Q("11.713689 mm")))
sketch9.addConstraint(Sketcher.Constraint("DistanceY", 0, 3, -1, 1, Q("4.527627 mm")))
pad8 = doc.addObject("PartDesign::Pad", "Pad007")
body.addObject(pad8)
pad8.Profile = sketch9
pad8.setExpression("Length", "Params.pad8_length")

# Sketch on XY plane
sketch10 = doc.addObject("Sketcher::SketchObject", "Sketch009")
body.addObject(sketch10)
sketch10.AttachmentSupport = (doc.XY_Plane, [""])
sketch10.MapMode = "FlatFace"
sketch10.AttachmentOffset = App.Placement(App.Vector(0, 0, 2), App.Rotation())
sketch10.addGeometry(Part.Circle(App.Vector(-11.713689, -4.527627, 0), App.Vector(0, 0, 1), 2.382418), False)
sketch10.addConstraint(Sketcher.Constraint("Diameter", 0, Q("4.764836 mm")))
sketch10.addConstraint(Sketcher.Constraint("DistanceX", 0, 3, -1, 1, Q("11.713689 mm")))
sketch10.addConstraint(Sketcher.Constraint("DistanceY", 0, 3, -1, 1, Q("4.527627 mm")))
pocket2 = doc.addObject("PartDesign::Pocket", "Pocket001")
body.addObject(pocket2)
pocket2.Profile = sketch10
pocket2.Type = "UpToFirst"
pocket2.Reversed = True
doc.recompute()

fillet3 = doc.addObject("PartDesign::Fillet", "Fillet002")
body.addObject(fillet3)
fillet3.Base = (pocket2, edges_at(pocket2, [(-15.199, -4.528, 3), (-9.331, -4.528, 3)]))
fillet3.setExpression("Radius", "Params.fillet3_radius")

doc.recompute()
